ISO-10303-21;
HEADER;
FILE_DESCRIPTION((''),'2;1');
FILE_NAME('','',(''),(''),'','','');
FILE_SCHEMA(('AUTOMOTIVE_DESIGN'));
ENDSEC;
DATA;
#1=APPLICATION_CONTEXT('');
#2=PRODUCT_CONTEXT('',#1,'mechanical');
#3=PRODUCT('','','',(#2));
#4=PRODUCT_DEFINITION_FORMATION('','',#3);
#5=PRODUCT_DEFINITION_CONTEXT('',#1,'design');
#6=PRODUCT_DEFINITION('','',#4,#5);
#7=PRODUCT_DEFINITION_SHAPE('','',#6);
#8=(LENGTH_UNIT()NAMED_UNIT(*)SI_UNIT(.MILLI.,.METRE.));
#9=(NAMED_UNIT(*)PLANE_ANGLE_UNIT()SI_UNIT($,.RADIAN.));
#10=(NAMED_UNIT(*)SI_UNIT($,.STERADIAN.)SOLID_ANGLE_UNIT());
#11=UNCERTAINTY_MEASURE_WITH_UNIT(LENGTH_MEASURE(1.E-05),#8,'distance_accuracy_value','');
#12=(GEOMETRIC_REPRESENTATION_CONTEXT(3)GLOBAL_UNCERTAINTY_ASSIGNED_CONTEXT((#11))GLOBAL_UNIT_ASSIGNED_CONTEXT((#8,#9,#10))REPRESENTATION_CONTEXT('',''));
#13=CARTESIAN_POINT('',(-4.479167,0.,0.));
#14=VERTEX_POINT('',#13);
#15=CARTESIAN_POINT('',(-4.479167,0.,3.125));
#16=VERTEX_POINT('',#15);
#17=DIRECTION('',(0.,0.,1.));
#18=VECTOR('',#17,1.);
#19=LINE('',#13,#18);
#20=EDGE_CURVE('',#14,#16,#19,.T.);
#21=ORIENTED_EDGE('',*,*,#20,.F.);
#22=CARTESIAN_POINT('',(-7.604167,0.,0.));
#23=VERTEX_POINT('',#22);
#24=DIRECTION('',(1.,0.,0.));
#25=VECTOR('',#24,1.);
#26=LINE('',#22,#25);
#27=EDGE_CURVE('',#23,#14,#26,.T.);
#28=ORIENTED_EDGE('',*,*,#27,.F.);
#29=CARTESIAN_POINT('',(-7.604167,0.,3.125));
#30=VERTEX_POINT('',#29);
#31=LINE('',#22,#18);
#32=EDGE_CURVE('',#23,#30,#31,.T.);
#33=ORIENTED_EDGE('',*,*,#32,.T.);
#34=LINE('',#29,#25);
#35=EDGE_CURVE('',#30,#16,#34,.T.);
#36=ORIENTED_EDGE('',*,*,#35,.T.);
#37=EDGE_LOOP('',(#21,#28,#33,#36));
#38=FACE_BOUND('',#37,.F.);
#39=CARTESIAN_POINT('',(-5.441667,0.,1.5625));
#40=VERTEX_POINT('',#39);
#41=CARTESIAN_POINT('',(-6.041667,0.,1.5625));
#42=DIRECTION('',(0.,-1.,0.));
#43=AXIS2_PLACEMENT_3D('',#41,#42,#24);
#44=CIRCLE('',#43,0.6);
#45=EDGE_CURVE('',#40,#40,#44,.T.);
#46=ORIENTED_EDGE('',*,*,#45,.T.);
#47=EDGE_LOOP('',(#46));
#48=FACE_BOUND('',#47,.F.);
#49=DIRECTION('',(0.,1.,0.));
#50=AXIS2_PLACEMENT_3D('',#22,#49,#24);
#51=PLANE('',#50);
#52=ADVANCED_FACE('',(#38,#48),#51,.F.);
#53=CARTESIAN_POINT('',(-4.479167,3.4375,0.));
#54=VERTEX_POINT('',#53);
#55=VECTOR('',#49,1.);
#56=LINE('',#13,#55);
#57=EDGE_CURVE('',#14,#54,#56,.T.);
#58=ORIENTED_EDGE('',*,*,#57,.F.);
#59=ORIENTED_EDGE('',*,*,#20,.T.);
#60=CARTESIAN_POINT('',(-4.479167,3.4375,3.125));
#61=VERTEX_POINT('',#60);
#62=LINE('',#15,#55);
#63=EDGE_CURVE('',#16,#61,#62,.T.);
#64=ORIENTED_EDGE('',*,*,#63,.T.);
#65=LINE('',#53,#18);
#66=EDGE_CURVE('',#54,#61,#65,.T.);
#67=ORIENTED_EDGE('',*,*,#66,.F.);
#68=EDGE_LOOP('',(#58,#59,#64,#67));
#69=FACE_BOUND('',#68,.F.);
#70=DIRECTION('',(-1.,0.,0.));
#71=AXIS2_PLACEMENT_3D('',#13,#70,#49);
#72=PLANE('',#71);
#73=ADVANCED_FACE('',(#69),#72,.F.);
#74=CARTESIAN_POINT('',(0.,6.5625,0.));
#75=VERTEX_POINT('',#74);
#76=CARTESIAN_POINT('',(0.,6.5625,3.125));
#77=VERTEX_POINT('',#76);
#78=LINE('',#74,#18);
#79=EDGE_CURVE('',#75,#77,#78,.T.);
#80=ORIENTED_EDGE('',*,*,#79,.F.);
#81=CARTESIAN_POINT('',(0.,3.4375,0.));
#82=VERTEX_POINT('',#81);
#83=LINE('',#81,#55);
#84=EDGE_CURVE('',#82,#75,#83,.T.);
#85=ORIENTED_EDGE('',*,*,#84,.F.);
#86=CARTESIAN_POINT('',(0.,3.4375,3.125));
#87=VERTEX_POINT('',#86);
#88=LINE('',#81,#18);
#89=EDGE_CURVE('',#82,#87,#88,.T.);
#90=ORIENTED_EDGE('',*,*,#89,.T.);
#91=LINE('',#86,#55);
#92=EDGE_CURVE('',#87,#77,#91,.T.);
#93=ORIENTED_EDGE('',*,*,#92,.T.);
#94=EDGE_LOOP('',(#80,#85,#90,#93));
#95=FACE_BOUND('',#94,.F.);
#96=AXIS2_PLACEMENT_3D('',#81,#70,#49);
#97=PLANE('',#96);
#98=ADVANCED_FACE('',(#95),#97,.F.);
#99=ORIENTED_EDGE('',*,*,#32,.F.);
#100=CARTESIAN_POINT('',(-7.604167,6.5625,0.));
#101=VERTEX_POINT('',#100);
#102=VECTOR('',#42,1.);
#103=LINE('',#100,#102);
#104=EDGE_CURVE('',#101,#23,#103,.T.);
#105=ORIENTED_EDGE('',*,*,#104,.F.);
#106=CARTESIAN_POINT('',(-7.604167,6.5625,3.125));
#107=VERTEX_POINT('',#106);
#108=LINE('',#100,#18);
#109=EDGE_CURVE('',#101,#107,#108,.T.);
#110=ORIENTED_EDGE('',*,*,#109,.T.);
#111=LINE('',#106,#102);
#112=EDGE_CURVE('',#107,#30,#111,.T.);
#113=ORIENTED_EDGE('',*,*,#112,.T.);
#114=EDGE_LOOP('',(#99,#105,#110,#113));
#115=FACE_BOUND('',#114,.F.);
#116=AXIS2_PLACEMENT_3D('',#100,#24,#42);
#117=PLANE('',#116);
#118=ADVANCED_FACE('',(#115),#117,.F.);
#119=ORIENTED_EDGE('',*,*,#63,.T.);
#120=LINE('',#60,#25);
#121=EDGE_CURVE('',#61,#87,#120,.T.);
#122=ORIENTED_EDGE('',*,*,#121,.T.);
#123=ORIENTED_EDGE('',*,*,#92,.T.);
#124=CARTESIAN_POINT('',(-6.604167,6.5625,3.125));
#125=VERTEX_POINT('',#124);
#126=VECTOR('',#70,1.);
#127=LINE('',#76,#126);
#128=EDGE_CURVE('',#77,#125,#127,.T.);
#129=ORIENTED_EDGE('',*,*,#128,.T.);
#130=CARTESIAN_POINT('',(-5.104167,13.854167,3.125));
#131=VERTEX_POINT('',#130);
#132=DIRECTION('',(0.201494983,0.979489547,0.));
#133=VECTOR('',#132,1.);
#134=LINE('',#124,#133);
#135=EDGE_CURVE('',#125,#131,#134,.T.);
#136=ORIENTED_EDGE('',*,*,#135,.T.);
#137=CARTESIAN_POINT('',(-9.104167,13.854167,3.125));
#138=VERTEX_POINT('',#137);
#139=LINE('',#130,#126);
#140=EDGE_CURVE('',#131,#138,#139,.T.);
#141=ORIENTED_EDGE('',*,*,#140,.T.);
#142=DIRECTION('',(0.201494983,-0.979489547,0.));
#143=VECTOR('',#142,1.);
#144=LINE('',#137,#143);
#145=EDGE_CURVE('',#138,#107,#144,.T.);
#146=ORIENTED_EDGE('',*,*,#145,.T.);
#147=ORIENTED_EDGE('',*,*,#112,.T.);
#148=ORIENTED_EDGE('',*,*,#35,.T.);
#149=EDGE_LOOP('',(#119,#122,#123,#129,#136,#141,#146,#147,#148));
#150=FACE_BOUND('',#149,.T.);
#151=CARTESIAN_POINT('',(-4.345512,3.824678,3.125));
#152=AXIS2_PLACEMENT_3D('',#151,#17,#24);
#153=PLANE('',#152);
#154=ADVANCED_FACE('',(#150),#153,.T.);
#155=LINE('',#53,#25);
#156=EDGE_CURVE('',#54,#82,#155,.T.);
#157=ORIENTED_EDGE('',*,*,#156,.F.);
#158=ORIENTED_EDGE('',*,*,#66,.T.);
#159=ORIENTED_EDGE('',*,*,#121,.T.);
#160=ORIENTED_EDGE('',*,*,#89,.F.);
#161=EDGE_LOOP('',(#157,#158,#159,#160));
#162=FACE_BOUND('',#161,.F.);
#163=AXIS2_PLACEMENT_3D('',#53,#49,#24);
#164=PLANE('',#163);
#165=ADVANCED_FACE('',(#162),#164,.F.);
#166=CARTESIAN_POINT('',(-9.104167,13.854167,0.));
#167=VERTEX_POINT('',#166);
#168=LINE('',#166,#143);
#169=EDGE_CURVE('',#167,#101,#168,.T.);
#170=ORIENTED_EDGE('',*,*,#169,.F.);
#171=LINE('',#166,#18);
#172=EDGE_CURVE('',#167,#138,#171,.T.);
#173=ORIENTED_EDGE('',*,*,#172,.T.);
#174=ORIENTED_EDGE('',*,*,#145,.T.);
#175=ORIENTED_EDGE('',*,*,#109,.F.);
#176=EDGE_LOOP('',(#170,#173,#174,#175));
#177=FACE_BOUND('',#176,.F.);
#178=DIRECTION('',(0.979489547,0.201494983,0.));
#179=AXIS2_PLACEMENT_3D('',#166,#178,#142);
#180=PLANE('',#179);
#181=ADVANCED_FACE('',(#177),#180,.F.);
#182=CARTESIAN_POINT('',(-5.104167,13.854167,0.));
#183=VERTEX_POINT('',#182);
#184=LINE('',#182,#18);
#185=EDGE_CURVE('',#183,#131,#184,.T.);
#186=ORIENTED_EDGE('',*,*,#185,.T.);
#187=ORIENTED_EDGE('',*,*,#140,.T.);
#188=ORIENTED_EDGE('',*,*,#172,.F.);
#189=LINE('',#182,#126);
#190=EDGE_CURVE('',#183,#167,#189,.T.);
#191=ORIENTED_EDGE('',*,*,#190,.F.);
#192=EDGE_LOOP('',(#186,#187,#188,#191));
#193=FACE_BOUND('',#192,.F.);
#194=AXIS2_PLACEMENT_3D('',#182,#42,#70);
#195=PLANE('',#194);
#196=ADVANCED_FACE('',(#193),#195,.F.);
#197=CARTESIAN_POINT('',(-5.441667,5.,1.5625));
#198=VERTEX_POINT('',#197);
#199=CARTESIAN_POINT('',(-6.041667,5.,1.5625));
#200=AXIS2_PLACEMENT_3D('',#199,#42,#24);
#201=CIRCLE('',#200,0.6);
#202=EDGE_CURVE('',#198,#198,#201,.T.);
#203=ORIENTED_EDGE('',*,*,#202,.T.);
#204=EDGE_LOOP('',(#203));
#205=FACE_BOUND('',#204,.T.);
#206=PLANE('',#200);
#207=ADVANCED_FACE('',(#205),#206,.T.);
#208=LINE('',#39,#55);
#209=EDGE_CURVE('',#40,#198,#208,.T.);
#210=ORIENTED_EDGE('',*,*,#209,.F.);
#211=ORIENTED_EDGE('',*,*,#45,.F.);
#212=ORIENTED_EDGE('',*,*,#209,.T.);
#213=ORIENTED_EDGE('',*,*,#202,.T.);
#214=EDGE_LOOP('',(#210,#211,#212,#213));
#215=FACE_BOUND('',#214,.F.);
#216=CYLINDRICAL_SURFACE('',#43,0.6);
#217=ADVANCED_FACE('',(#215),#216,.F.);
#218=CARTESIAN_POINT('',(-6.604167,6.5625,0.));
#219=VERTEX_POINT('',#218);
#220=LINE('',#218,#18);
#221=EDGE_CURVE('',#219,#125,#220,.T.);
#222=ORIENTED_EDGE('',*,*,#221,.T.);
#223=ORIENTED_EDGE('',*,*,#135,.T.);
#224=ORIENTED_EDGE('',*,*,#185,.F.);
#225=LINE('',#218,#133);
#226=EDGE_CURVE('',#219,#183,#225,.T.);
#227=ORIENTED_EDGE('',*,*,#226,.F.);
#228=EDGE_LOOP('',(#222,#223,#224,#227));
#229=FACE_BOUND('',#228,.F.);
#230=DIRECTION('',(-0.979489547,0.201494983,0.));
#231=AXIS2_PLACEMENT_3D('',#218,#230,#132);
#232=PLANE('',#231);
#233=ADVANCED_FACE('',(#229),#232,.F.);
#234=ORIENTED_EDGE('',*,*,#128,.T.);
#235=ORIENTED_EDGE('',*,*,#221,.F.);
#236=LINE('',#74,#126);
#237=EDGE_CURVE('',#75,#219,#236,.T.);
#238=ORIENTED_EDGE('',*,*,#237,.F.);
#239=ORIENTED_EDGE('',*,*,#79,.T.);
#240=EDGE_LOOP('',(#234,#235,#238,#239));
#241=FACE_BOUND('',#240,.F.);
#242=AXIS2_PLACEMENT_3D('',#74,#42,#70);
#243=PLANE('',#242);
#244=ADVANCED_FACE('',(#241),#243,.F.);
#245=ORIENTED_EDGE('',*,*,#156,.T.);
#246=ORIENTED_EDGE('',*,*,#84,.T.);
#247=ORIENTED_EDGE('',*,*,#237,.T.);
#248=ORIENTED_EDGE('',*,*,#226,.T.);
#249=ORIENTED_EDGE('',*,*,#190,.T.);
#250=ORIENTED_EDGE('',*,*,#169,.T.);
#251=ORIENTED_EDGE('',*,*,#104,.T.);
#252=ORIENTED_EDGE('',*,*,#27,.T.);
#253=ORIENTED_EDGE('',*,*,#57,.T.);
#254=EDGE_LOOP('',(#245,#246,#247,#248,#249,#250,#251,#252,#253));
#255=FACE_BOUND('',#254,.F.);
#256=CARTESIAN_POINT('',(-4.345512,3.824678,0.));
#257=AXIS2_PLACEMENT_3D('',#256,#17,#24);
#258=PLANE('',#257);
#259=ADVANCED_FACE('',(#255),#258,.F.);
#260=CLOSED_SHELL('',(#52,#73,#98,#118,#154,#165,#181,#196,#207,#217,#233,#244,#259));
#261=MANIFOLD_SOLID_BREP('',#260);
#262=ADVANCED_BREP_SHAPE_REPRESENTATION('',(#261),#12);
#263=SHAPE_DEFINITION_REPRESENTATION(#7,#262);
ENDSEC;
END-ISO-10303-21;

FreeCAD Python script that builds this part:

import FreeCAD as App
import Part
import Sketcher
Q = App.Units.Quantity


def add_polygon(sketch, points):
    """Adds a closed chain of lines whose ends are joined by coincident constraints."""
    first, n = sketch.GeometryCount, len(points)
    for a, b in zip(points, points[1:] + points[:1]):
        sketch.addGeometry(Part.LineSegment(App.Vector(*a, 0), App.Vector(*b, 0)), False)
    for i in range(n):
        sketch.addConstraint(Sketcher.Constraint("Coincident", first + i, 2, first + (i + 1) % n, 1))

doc = App.newDocument("Part")
body = doc.addObject("PartDesign::Body", "Body")

# Sketch on XY plane
sketch1 = body.newObject("Sketcher::SketchObject", "Sketch")
sketch1.AttachmentSupport = (doc.getObject("XY_Plane"), [""])
sketch1.MapMode = "FlatFace"
add_polygon(sketch1, [(-7.6, 6.6), (-7.6, 0), (-4.5, 0), (-4.5, 3.4), (0, 3.4), (0, 6.6), (-6.6, 6.6), (-5.1, 13.9), (-9.1, 13.9)])  # lines 0-8
sketch1.addConstraint([
    Sketcher.Constraint("Vertical", 0),
    Sketcher.Constraint("Horizontal", 1),
    Sketcher.Constraint("Vertical", 2),
    Sketcher.Constraint("Horizontal", 3),
    Sketcher.Constraint("Vertical", 4),
    Sketcher.Constraint("Horizontal", 5),
    Sketcher.Constraint("Horizontal", 7),
    Sketcher.Constraint("PointOnObject", 0, 2, -1),
    Sketcher.Constraint("PointOnObject", 3, 2, -2),
    Sketcher.Constraint("Horizontal", 5, 2, 8, 2),
    Sketcher.Constraint("Equal", 1, 4),
    Sketcher.Constraint("Equal", 6, 8),
    Sketcher.Constraint("DistanceX", 7, 2, 7, 1, Q("4 mm")),
    Sketcher.Constraint("DistanceX", 0, 2, 5, 2, Q("1 mm")),
    Sketcher.Constraint("DistanceX", 1, 1, 1, 2, Q("3.125 mm")),
    Sketcher.Constraint("DistanceY", 0, 2, 0, 1, Q("6.5625 mm")),
    Sketcher.Constraint("DistanceX", 3, 1, 3, 2, Q("4.479167 mm")),
    Sketcher.Constraint("Distance", 6, Q("7.444354 mm")),
])
pad1 = body.newObject("PartDesign::Pad", "Pad")
pad1.Profile = sketch1
pad1.Length = 3.125

# Sketch on XZ plane
sketch2 = body.newObject("Sketcher::SketchObject", "Sketch001")
sketch2.AttachmentSupport = (doc.getObject("XZ_Plane"), [""])
sketch2.MapMode = "FlatFace"
sketch2.addGeometry(Part.Circle(App.Vector(-6, 1.6, 0), App.Vector(0, 0, 1), 0.6), False)
sketch2.addConstraint([
    Sketcher.Constraint("Diameter", 0, Q("1.2 mm")),
    Sketcher.Constraint("DistanceY", -1, 1, 0, 3, Q("1.5625 mm")),
    Sketcher.Constraint("DistanceX", 0, 3, -1, 1, Q("6.041667 mm")),
])
pocket1 = body.newObject("PartDesign::Pocket", "Pocket")
pocket1.Profile = sketch2
pocket1.Length = 5

doc.recompute()
